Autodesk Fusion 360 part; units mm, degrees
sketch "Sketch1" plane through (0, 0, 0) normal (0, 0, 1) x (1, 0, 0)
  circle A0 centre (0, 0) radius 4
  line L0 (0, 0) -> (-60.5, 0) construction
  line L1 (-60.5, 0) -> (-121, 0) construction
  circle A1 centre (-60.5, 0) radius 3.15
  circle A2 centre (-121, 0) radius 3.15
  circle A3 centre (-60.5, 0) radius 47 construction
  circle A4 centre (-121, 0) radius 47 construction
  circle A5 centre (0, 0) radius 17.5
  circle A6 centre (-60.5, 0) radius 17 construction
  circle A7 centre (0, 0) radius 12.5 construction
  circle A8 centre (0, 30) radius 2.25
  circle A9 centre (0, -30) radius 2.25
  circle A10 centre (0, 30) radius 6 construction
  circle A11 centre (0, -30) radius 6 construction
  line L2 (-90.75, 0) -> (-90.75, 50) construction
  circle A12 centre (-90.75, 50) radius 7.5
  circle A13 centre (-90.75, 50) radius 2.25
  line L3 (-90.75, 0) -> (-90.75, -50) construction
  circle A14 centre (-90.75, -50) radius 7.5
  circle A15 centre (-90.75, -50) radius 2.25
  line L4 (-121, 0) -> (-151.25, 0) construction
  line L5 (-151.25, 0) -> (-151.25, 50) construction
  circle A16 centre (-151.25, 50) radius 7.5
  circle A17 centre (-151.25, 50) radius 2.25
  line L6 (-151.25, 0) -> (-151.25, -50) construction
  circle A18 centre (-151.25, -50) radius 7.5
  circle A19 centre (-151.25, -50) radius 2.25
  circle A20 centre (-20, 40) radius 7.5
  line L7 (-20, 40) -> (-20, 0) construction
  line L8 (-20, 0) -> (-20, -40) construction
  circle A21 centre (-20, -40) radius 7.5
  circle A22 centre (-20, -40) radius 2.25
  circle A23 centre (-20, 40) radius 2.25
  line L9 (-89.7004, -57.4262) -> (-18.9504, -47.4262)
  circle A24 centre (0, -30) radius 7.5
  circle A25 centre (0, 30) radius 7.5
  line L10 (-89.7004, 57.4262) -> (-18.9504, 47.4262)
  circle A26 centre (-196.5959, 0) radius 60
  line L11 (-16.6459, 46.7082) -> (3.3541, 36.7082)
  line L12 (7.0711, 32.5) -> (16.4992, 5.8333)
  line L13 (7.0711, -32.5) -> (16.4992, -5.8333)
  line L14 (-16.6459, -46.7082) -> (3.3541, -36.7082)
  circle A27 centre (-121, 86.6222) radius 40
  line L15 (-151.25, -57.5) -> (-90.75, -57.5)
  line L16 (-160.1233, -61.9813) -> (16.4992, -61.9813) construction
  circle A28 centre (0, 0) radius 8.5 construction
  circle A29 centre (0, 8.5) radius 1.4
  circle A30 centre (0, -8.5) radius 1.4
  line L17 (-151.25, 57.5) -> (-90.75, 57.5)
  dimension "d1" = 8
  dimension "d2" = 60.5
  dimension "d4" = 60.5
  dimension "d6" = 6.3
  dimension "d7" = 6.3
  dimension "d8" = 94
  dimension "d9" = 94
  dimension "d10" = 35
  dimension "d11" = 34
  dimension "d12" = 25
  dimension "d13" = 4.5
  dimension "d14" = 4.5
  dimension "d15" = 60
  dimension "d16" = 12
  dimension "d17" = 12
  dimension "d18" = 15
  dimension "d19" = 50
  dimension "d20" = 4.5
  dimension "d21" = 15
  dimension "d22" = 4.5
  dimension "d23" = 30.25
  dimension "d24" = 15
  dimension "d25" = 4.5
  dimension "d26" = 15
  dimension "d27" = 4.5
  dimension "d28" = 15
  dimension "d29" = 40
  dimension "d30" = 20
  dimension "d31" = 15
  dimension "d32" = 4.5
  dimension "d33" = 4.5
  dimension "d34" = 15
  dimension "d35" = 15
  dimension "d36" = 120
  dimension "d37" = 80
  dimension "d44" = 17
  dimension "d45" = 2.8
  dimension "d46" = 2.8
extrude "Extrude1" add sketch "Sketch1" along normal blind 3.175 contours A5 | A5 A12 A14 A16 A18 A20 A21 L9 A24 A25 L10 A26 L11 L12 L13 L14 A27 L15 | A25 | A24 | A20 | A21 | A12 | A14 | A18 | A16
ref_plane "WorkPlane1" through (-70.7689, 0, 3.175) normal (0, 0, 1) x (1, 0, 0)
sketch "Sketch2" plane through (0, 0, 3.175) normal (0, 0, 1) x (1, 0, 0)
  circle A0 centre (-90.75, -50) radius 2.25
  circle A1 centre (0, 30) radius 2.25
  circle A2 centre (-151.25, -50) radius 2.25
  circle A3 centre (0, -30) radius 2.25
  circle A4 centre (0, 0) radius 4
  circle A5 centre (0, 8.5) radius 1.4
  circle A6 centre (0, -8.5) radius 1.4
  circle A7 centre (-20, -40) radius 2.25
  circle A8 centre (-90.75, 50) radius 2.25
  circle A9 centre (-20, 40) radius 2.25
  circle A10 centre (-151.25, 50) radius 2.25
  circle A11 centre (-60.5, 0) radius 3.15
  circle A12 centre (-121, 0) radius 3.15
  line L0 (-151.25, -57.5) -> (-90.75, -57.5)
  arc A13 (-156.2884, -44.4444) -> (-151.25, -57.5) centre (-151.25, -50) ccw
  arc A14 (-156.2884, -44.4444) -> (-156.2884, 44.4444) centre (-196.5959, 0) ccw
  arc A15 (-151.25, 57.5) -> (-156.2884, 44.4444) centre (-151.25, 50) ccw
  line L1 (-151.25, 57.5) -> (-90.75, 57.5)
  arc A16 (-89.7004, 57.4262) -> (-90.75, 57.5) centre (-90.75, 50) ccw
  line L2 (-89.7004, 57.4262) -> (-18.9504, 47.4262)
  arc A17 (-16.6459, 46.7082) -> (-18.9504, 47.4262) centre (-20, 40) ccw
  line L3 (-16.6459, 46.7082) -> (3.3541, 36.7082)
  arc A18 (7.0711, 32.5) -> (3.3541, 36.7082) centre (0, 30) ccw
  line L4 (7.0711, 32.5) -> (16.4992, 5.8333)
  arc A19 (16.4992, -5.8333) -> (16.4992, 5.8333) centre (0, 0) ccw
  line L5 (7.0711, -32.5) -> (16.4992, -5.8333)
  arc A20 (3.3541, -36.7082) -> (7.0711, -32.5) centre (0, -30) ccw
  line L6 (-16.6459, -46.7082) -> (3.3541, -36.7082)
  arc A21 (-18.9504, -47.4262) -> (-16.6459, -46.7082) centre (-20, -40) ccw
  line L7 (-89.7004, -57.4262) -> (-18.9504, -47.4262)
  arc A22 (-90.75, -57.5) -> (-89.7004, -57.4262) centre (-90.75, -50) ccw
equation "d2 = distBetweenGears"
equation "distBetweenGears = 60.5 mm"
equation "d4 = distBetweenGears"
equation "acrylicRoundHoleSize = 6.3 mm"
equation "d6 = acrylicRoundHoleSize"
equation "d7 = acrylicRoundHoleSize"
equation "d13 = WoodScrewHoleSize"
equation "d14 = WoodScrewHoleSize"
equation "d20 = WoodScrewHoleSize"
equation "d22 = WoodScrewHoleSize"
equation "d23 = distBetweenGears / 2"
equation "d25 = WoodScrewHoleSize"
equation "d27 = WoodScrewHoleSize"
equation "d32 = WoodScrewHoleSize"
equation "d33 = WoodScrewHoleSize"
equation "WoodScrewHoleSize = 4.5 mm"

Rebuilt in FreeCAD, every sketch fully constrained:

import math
import FreeCAD as App
import Part
import Sketcher
from FreeCAD import Vector

doc = App.newDocument("Part")
body = doc.addObject("PartDesign::Body", "Body")

# Sketch on XY plane
sketch1 = body.newObject("Sketcher::SketchObject", "Sketch")
sketch1.AttachmentSupport = (doc.getObject("XY_Plane"), [""])
sketch1.MapMode = "FlatFace"
sketch1.addGeometry(Part.ArcOfCircle(Part.Circle(Vector(0, 0, 0), Vector(0, 0, 1), 17.5), math.radians(-19), math.radians(19)), False)
sketch1.addGeometry(Part.LineSegment(Vector(16.5, 5.8, 0), Vector(7.1, 32.5, 0)), False)
sketch1.addGeometry(Part.ArcOfCircle(Part.Circle(Vector(0, 30, 0), Vector(0, 0, 1), 7.5), math.radians(19), math.radians(63)), False)
sketch1.addGeometry(Part.LineSegment(Vector(3.4, 36.7, 0), Vector(-16.6, 46.7, 0)), False)
sketch1.addGeometry(Part.ArcOfCircle(Part.Circle(Vector(-20, 40, 0), Vector(0, 0, 1), 7.5), math.radians(63.43), math.radians(81.96)), False)
sketch1.addGeometry(Part.LineSegment(Vector(-19, 47.4, 0), Vector(-89.7, 57.4, 0)), False)
sketch1.addGeometry(Part.ArcOfCircle(Part.Circle(Vector(-90.8, 50, 0), Vector(0, 0, 1), 7.5), math.radians(82), math.radians(130)), False)
sketch1.addGeometry(Part.ArcOfCircle(Part.Circle(Vector(-121, 86.6, 0), Vector(0, 0, 1), 40), math.radians(-130), math.radians(-50)), False)
sketch1.addGeometry(Part.ArcOfCircle(Part.Circle(Vector(-151.2, 50, 0), Vector(0, 0, 1), 7.5), math.radians(50), math.radians(228)), False)
sketch1.addGeometry(Part.ArcOfCircle(Part.Circle(Vector(-196.6, 0, 0), Vector(0, 0, 1), 60), math.radians(-48), math.radians(48)), False)
sketch1.addGeometry(Part.ArcOfCircle(Part.Circle(Vector(-151.2, -50, 0), Vector(0, 0, 1), 7.5), math.radians(132), math.radians(270)), False)
sketch1.addGeometry(Part.LineSegment(Vector(-151.2, -57.5, 0), Vector(-90.8, -57.5, 0)), False)
sketch1.addGeometry(Part.ArcOfCircle(Part.Circle(Vector(-90.8, -50, 0), Vector(0, 0, 1), 7.5), math.radians(-90), math.radians(-81.96)), False)
sketch1.addGeometry(Part.LineSegment(Vector(-89.7, -57.4, 0), Vector(-19, -47.4, 0)), False)
sketch1.addGeometry(Part.ArcOfCircle(Part.Circle(Vector(-20, -40, 0), Vector(0, 0, 1), 7.5), math.radians(-81.96), math.radians(-63.43)), False)
sketch1.addGeometry(Part.LineSegment(Vector(-16.6, -46.7, 0), Vector(3.4, -36.7, 0)), False)
sketch1.addGeometry(Part.ArcOfCircle(Part.Circle(Vector(0, -30, 0), Vector(0, 0, 1), 7.5), math.radians(-63), math.radians(-19)), False)
sketch1.addGeometry(Part.LineSegment(Vector(7.1, -32.5, 0), Vector(16.5, -5.8, 0)), False)
sketch1.addGeometry(Part.Circle(Vector(0, -8.5, 0), Vector(0, 0, 1), 1.4), False)
sketch1.addGeometry(Part.Circle(Vector(0, 0, 0), Vector(0, 0, 1), 4), False)
sketch1.addGeometry(Part.Circle(Vector(0, 8.5, 0), Vector(0, 0, 1), 1.4), False)
sketch1.addGeometry(Part.Circle(Vector(-60.5, 0, 0), Vector(0, 0, 1), 3.1), False)
sketch1.addGeometry(Part.Circle(Vector(-121, 0, 0), Vector(0, 0, 1), 3.1), False)
sketch1.addGeometry(Part.Circle(Vector(0, -30, 0), Vector(0, 0, 1), 2.2), False)
sketch1.addGeometry(Part.Circle(Vector(-20, -40, 0), Vector(0, 0, 1), 2.2), False)
sketch1.addGeometry(Part.Circle(Vector(-90.8, -50, 0), Vector(0, 0, 1), 2.2), False)
sketch1.addGeometry(Part.Circle(Vector(-151.2, -50, 0), Vector(0, 0, 1), 2.2), False)
sketch1.addGeometry(Part.Circle(Vector(-151.2, 50, 0), Vector(0, 0, 1), 2.2), False)
sketch1.addGeometry(Part.Circle(Vector(-90.8, 50, 0), Vector(0, 0, 1), 2.2), False)
sketch1.addGeometry(Part.Circle(Vector(-20, 40, 0), Vector(0, 0, 1), 2.2), False)
sketch1.addGeometry(Part.Circle(Vector(0, 30, 0), Vector(0, 0, 1), 2.2), False)
sketch1.addConstraint(Sketcher.Constraint("Tangent", 0, 2, 1, 1))
sketch1.addConstraint(Sketcher.Constraint("Tangent", 1, 2, 2, 1))
sketch1.addConstraint(Sketcher.Constraint("Tangent", 2, 2, 3, 1))
sketch1.addConstraint(Sketcher.Constraint("Tangent", 3, 2, 4, 1))
sketch1.addConstraint(Sketcher.Constraint("Tangent", 4, 2, 5, 1))
sketch1.addConstraint(Sketcher.Constraint("Tangent", 5, 2, 6, 1))
sketch1.addConstraint(Sketcher.Constraint("Tangent", 6, 2, 7, 2))
sketch1.addConstraint(Sketcher.Constraint("Tangent", 7, 1, 8, 1))
sketch1.addConstraint(Sketcher.Constraint("Tangent", 8, 2, 9, 2))
sketch1.addConstraint(Sketcher.Constraint("Tangent", 9, 1, 10, 1))
sketch1.addConstraint(Sketcher.Constraint("Tangent", 10, 2, 11, 1))
sketch1.addConstraint(Sketcher.Constraint("Tangent", 11, 2, 12, 1))
sketch1.addConstraint(Sketcher.Constraint("Tangent", 12, 2, 13, 1))
sketch1.addConstraint(Sketcher.Constraint("Tangent", 13, 2, 14, 1))
sketch1.addConstraint(Sketcher.Constraint("Tangent", 14, 2, 15, 1))
sketch1.addConstraint(Sketcher.Constraint("Tangent", 15, 2, 16, 1))
sketch1.addConstraint(Sketcher.Constraint("Tangent", 16, 2, 17, 1))
sketch1.addConstraint(Sketcher.Constraint("Tangent", 17, 2, 0, 1))
sketch1.addConstraint(Sketcher.Constraint("Horizontal", 11))
sketch1.addConstraint(Sketcher.Constraint("Coincident", 0, 3, -1, 1))
sketch1.addConstraint(Sketcher.Constraint("Coincident", 19, 3, -1, 1))
sketch1.addConstraint(Sketcher.Constraint("Coincident", 23, 3, 16, 3))
sketch1.addConstraint(Sketcher.Constraint("Coincident", 24, 3, 14, 3))
sketch1.addConstraint(Sketcher.Constraint("Coincident", 25, 3, 12, 3))
sketch1.addConstraint(Sketcher.Constraint("Coincident", 26, 3, 10, 3))
sketch1.addConstraint(Sketcher.Constraint("Coincident", 27, 3, 8, 3))
sketch1.addConstraint(Sketcher.Constraint("Coincident", 28, 3, 6, 3))
sketch1.addConstraint(Sketcher.Constraint("Coincident", 29, 3, 4, 3))
sketch1.addConstraint(Sketcher.Constraint("Coincident", 30, 3, 2, 3))
sketch1.addConstraint(Sketcher.Constraint("Equal", 2, 4))
sketch1.addConstraint(Sketcher.Constraint("Equal", 4, 6))
sketch1.addConstraint(Sketcher.Constraint("Equal", 6, 8))
sketch1.addConstraint(Sketcher.Constraint("Equal", 8, 10))
sketch1.addConstraint(Sketcher.Constraint("Equal", 10, 12))
sketch1.addConstraint(Sketcher.Constraint("Equal", 12, 14))
sketch1.addConstraint(Sketcher.Constraint("Equal", 14, 16))
sketch1.addConstraint(Sketcher.Constraint("Equal", 18, 20))
sketch1.addConstraint(Sketcher.Constraint("Equal", 21, 22))
sketch1.addConstraint(Sketcher.Constraint("Equal", 23, 24))
sketch1.addConstraint(Sketcher.Constraint("Equal", 24, 25))
sketch1.addConstraint(Sketcher.Constraint("Equal", 25, 26))
sketch1.addConstraint(Sketcher.Constraint("Equal", 26, 27))
sketch1.addConstraint(Sketcher.Constraint("Equal", 27, 28))
sketch1.addConstraint(Sketcher.Constraint("Equal", 28, 29))
sketch1.addConstraint(Sketcher.Constraint("Equal", 29, 30))
sketch1.addConstraint(Sketcher.Constraint("Symmetric", 2, 3, 16, 3, -1, 1))
sketch1.addConstraint(Sketcher.Constraint("Symmetric", 18, 3, 20, 3, -1, 1))
sketch1.addConstraint(Sketcher.Constraint("Symmetric", 8, 3, 10, 3, -1))
sketch1.addConstraint(Sketcher.Constraint("Symmetric", 6, 3, 12, 3, -1))
sketch1.addConstraint(Sketcher.Constraint("Symmetric", 4, 3, 14, 3, -1))
sketch1.addConstraint(Sketcher.Constraint("PointOnObject", 2, 3, -2))
sketch1.addConstraint(Sketcher.Constraint("PointOnObject", 18, 3, -2))
sketch1.addConstraint(Sketcher.Constraint("PointOnObject", 21, 3, -1))
sketch1.addConstraint(Sketcher.Constraint("PointOnObject", 22, 3, -1))
sketch1.addConstraint(Sketcher.Constraint("Vertical", 7, 3, 22, 3))
sketch1.addConstraint(Sketcher.Constraint("Diameter", 19, 8.0))
sketch1.addConstraint(Sketcher.Constraint("Radius", 7, 40.0))
sketch1.addConstraint(Sketcher.Constraint("Radius", 9, 60.0))
sketch1.addConstraint(Sketcher.Constraint("Diameter", 18, 2.8))
sketch1.addConstraint(Sketcher.Constraint("Diameter", 21, 6.3))
sketch1.addConstraint(Sketcher.Constraint("Diameter", 23, 4.5))
sketch1.addConstraint(Sketcher.Constraint("Radius", 0, 17.5))
sketch1.addConstraint(Sketcher.Constraint("Radius", 2, 7.5))
sketch1.addConstraint(Sketcher.Constraint("DistanceX", 11, 1, 11, 2, 60.5))
sketch1.addConstraint(Sketcher.Constraint("DistanceX", 4, 3, -1, 1, 20.0))
sketch1.addConstraint(Sketcher.Constraint("DistanceY", -1, 1, 4, 3, 40.0))
sketch1.addConstraint(Sketcher.Constraint("DistanceY", -1, 1, 6, 3, 50.0))
sketch1.addConstraint(Sketcher.Constraint("DistanceY", 2, 3, 6, 3, 20.0))
sketch1.addConstraint(Sketcher.Constraint("DistanceY", 18, 3, 20, 3, 17.0))
sketch1.addConstraint(Sketcher.Constraint("DistanceX", 21, 3, -1, 1, 60.5))
sketch1.addConstraint(Sketcher.Constraint("DistanceX", 22, 3, 21, 3, 60.5))
pad1 = body.newObject("PartDesign::Pad", "Pad")
pad1.Profile = sketch1
pad1.Length = 3.175

doc.recompute()
